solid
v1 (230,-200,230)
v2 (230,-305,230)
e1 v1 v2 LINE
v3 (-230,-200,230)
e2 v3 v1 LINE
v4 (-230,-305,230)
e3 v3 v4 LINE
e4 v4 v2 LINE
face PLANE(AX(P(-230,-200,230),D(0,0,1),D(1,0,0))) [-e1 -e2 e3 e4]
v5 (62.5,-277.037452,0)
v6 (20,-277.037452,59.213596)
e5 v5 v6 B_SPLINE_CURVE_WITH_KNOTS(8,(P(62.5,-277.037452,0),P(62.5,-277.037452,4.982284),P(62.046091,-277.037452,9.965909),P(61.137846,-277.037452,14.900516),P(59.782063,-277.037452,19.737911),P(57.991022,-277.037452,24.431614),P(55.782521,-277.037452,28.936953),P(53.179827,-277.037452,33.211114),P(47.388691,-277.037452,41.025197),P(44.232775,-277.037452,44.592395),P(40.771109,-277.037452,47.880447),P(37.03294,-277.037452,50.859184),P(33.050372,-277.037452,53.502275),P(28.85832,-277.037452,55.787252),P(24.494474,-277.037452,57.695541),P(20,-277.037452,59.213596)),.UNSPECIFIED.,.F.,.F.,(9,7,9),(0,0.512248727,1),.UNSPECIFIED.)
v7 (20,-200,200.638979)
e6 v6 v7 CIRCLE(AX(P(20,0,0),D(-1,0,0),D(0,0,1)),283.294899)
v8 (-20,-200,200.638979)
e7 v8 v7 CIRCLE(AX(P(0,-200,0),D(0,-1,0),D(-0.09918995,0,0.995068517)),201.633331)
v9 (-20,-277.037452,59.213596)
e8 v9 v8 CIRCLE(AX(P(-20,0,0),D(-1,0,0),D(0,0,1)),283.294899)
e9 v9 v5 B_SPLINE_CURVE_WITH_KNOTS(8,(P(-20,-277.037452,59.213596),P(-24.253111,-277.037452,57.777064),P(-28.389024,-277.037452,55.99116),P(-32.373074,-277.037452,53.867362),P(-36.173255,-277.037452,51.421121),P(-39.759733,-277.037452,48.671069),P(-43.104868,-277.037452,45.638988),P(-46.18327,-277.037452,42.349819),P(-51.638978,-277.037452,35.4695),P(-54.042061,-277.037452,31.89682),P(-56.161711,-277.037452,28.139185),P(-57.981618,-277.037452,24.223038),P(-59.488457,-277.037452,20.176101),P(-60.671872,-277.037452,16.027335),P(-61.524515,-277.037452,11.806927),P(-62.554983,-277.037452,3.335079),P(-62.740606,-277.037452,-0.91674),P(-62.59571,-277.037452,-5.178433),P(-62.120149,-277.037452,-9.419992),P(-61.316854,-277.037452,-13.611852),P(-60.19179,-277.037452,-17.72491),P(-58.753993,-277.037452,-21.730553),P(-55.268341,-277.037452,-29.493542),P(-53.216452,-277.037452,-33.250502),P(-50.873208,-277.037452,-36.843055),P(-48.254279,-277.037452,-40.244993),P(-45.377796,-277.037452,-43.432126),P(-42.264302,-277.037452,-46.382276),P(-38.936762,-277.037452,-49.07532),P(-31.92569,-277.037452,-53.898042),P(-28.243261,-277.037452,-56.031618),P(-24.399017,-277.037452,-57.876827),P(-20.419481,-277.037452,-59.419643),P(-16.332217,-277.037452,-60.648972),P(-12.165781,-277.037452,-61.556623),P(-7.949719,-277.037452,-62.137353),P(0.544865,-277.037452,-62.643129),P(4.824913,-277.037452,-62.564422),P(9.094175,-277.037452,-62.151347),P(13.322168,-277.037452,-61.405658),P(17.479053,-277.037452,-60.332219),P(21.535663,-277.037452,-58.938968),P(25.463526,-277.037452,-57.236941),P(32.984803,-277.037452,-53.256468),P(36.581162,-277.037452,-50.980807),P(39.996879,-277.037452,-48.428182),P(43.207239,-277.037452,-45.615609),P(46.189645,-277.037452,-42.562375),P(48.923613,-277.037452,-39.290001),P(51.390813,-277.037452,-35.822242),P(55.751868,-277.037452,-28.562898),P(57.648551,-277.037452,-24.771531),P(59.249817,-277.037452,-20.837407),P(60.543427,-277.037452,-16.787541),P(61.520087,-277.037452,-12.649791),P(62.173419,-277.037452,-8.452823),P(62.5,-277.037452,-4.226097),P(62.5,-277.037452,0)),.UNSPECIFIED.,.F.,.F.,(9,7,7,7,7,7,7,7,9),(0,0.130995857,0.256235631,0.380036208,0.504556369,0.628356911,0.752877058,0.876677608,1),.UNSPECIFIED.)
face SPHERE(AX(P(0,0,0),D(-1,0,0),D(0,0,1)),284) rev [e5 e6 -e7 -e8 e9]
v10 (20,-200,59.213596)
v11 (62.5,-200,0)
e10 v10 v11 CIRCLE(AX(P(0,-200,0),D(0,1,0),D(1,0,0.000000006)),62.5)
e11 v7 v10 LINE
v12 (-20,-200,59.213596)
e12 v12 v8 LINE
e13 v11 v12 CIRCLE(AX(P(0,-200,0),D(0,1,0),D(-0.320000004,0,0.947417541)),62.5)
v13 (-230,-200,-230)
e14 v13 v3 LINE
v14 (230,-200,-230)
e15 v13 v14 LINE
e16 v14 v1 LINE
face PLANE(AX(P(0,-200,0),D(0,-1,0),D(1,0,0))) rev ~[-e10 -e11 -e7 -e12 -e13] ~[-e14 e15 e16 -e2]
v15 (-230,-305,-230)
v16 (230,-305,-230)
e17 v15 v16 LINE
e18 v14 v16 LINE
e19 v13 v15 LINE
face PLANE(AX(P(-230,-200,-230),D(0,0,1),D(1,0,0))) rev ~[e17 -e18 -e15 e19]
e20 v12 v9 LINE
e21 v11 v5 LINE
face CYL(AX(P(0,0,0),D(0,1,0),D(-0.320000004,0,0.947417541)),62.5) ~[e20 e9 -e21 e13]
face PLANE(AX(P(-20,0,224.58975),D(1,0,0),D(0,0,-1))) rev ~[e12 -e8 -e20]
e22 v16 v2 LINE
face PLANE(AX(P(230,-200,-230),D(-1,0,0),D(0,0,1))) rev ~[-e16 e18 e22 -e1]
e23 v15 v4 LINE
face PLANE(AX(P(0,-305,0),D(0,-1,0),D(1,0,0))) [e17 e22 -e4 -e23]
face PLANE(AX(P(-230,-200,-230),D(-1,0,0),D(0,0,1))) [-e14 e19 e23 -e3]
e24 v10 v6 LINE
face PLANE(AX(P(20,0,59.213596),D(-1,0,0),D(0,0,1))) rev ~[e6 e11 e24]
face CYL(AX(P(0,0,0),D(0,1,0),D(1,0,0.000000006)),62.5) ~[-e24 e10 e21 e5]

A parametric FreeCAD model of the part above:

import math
import FreeCAD as App
import Part
import Sketcher
from FreeCAD import Vector
Q = App.Units.Quantity

doc = App.newDocument("Part")
body = doc.addObject("PartDesign::Body", "Body")

sketch1 = body.newObject("Sketcher::SketchObject", "Sketch")
sketch1.AttachmentSupport = (doc.getObject("XZ_Plane"), [""])
sketch1.MapMode = "FlatFace"
sketch1.addGeometry(Part.LineSegment(Vector(-284, 0, 0), Vector(284, 0, 0)), False)
sketch1.addGeometry(Part.ArcOfCircle(Part.Circle(Vector(0, 0, 0), Vector(0, 0, 1), 284), math.radians(0), math.radians(180)), False)
sketch1.addConstraint(Sketcher.Constraint("Coincident", 0, 1, 1, 2))
sketch1.addConstraint(Sketcher.Constraint("Coincident", 1, 1, 0, 2))
sketch1.addConstraint(Sketcher.Constraint("Horizontal", 0))
sketch1.addConstraint(Sketcher.Constraint("Coincident", 1, 3, -1, 1))
sketch1.addConstraint(Sketcher.Constraint("PointOnObject", 0, 1, -1))
sketch1.addConstraint(Sketcher.Constraint("Radius", 1, Q("284 mm")))
revolution = body.newObject("PartDesign::Revolution", "Revolution")
revolution.Profile = sketch1
revolution.ReferenceAxis = (sketch1, ["H_Axis"])
revolution.Angle = 360

sketch2 = body.newObject("Sketcher::SketchObject", "Sketch001")
sketch2.AttachmentSupport = (doc.getObject("XZ_Plane"), [""])
sketch2.MapMode = "FlatFace"
sketch2.AttachmentOffset = App.Placement(Vector(0, 0, 200), App.Rotation())
sketch2.addGeometry(Part.Circle(Vector(0, 0, 0), Vector(0, 0, 1), 300), False)
sketch2.addConstraint(Sketcher.Constraint("Coincident", 0, 3, -1, 1))
sketch2.addConstraint(Sketcher.Constraint("Diameter", 0, Q("600 mm")))
pocket1 = body.newObject("PartDesign::Pocket", "Pocket")
pocket1.Profile = sketch2
pocket1.Length = 500

sketch3 = body.newObject("Sketcher::SketchObject", "Sketch002")
sketch3.AttachmentSupport = (doc.getObject("XZ_Plane"), [""])
sketch3.MapMode = "FlatFace"
sketch3.addGeometry(Part.LineSegment(Vector(20, 59, 0), Vector(20, 225, 0)), False)
sketch3.addGeometry(Part.LineSegment(Vector(20, 225, 0), Vector(-20, 225, 0)), False)
sketch3.addGeometry(Part.LineSegment(Vector(-20, 225, 0), Vector(-20, 59, 0)), False)
sketch3.addGeometry(Part.ArcOfCircle(Part.Circle(Vector(0, 0, 0), Vector(0, 0, 1), 62), math.radians(109), math.radians(360)), False)
sketch3.addGeometry(Part.ArcOfCircle(Part.Circle(Vector(0, 0, 0), Vector(0, 0, 1), 62), math.radians(0), math.radians(71)), False)
sketch3.addConstraint(Sketcher.Constraint("Coincident", 0, 2, 1, 1))
sketch3.addConstraint(Sketcher.Constraint("Coincident", 1, 2, 2, 1))
sketch3.addConstraint(Sketcher.Constraint("Coincident", 2, 2, 3, 1))
sketch3.addConstraint(Sketcher.Constraint("Tangent", 3, 2, 4, 1))
sketch3.addConstraint(Sketcher.Constraint("Coincident", 4, 2, 0, 1))
sketch3.addConstraint(Sketcher.Constraint("Vertical", 0))
sketch3.addConstraint(Sketcher.Constraint("Horizontal", 1))
sketch3.addConstraint(Sketcher.Constraint("Vertical", 2))
sketch3.addConstraint(Sketcher.Constraint("Coincident", 3, 3, -1, 1))
sketch3.addConstraint(Sketcher.Constraint("Equal", 3, 4))
sketch3.addConstraint(Sketcher.Constraint("PointOnObject", 3, 2, -1))
sketch3.addConstraint(Sketcher.Constraint("Horizontal", 2, 2, 4, 2))
sketch3.addConstraint(Sketcher.Constraint("Radius", 3, Q("62.5 mm")))
sketch3.addConstraint(Sketcher.Constraint("DistanceX", 1, 2, 1, 1, Q("40 mm")))
sketch3.addConstraint(Sketcher.Constraint("DistanceY", 0, 1, 0, 2, Q("165.376154 mm")))
pocket2 = body.newObject("PartDesign::Pocket", "Pocket001")
pocket2.Profile = sketch3
pocket2.Length = 600
pocket2.Reversed = True
body2 = doc.addObject("PartDesign::Body", "Body001")

sketch4 = body2.newObject("Sketcher::SketchObject", "Sketch003")
sketch4.AttachmentSupport = (doc.getObject("XZ_Plane001"), [""])
sketch4.MapMode = "FlatFace"
sketch4.AttachmentOffset = App.Placement(Vector(0, 0, 200), App.Rotation())
sketch4.addGeometry(Part.LineSegment(Vector(-230, 230, 0), Vector(-230, -230, 0)), False)
sketch4.addGeometry(Part.LineSegment(Vector(-230, -230, 0), Vector(230, -230, 0)), False)
sketch4.addGeometry(Part.LineSegment(Vector(230, -230, 0), Vector(230, 230, 0)), False)
sketch4.addGeometry(Part.LineSegment(Vector(230, 230, 0), Vector(-230, 230, 0)), False)
sketch4.addConstraint(Sketcher.Constraint("Coincident", 0, 2, 1, 1))
sketch4.addConstraint(Sketcher.Constraint("Coincident", 1, 2, 2, 1))
sketch4.addConstraint(Sketcher.Constraint("Coincident", 2, 2, 3, 1))
sketch4.addConstraint(Sketcher.Constraint("Coincident", 3, 2, 0, 1))
sketch4.addConstraint(Sketcher.Constraint("Vertical", 0))
sketch4.addConstraint(Sketcher.Constraint("Horizontal", 1))
sketch4.addConstraint(Sketcher.Constraint("Vertical", 2))
sketch4.addConstraint(Sketcher.Constraint("Horizontal", 3))
sketch4.addConstraint(Sketcher.Constraint("Symmetric", 0, 2, 2, 2, -1, 1))
sketch4.addConstraint(Sketcher.Constraint("Equal", 3, 0))
sketch4.addConstraint(Sketcher.Constraint("DistanceX", 1, 1, 1, 2, Q("460 mm")))
pad1 = body2.newObject("PartDesign::Pad", "Pad")
pad1.Profile = sketch4
pad1.Length = 105
doc.recompute()

boolean = body2.newObject("PartDesign::Boolean", "Boolean")
boolean.Type = "Cut"
boolean.addObjects([body])

doc.recompute()
